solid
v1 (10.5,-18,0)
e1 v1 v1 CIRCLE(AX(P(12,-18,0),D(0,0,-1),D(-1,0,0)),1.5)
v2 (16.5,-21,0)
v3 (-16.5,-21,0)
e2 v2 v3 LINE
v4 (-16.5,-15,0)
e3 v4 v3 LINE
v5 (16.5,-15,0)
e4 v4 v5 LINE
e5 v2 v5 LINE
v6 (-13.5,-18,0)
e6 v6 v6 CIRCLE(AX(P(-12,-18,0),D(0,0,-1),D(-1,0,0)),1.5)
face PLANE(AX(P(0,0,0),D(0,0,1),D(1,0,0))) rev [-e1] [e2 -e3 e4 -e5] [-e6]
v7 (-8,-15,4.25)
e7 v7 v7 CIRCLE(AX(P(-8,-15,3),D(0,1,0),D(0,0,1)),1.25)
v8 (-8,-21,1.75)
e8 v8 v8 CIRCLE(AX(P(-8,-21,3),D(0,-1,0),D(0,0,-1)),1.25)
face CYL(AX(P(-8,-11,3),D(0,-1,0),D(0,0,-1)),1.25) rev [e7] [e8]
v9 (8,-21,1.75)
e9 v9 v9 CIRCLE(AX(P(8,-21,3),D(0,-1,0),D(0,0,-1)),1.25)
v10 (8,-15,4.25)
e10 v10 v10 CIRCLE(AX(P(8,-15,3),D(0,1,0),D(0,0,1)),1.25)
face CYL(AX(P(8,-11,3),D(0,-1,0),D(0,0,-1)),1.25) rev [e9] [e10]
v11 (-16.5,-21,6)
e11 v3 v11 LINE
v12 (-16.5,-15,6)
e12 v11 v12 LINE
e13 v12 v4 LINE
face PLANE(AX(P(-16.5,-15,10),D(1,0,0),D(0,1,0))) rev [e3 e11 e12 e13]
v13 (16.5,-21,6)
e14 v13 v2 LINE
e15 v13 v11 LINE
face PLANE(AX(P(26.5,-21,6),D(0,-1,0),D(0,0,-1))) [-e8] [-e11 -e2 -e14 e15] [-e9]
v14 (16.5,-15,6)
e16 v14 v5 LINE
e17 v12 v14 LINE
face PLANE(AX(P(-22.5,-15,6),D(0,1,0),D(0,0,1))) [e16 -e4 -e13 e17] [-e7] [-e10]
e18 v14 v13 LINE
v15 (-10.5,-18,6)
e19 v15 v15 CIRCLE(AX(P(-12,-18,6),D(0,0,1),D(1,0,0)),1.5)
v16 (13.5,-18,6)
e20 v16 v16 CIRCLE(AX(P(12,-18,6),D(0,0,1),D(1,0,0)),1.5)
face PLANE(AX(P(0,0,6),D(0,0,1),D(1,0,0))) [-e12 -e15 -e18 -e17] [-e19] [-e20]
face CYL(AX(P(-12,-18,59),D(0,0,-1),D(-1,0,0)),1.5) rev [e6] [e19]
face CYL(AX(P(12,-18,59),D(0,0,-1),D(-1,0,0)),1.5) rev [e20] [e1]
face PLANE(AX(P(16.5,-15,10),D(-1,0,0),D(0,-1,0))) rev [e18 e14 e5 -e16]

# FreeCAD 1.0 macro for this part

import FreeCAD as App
import Part
import Sketcher
from FreeCAD import Vector
Q = App.Units.Quantity

doc = App.newDocument("Part")
body = doc.addObject("PartDesign::Body", "Body")

# Sketch on XY plane
sketch1 = body.newObject("Sketcher::SketchObject", "Sketch")
sketch1.AttachmentSupport = (doc.getObject("XY_Plane"), [""])
sketch1.MapMode = "FlatFace"
sketch1.addGeometry([
    Part.LineSegment(Vector(-26.5, 19, 0), Vector(-26.5, -19, 0)),  # 0
    Part.LineSegment(Vector(-26.5, -19, 0), Vector(26.5, -19, 0)),  # 1
    Part.LineSegment(Vector(26.5, -19, 0), Vector(26.5, 19, 0)),  # 2
    Part.LineSegment(Vector(26.5, 19, 0), Vector(-26.5, 19, 0)),  # 3
    Part.LineSegment(Vector(22.5, -15, 0), Vector(-22.5, -15, 0)),  # 4
    Part.LineSegment(Vector(-22.5, -15, 0), Vector(-22.5, 15, 0)),  # 5
    Part.LineSegment(Vector(-22.5, 15, 0), Vector(22.5, 15, 0)),  # 6
    Part.LineSegment(Vector(22.5, 15, 0), Vector(22.5, -15, 0)),  # 7
], False)
sketch1.addConstraint([
    Sketcher.Constraint("Coincident", 0, 2, 1, 1),
    Sketcher.Constraint("Coincident", 1, 2, 2, 1),
    Sketcher.Constraint("Coincident", 2, 2, 3, 1),
    Sketcher.Constraint("Coincident", 3, 2, 0, 1),
    Sketcher.Constraint("Coincident", 4, 2, 5, 1),
    Sketcher.Constraint("Coincident", 5, 2, 6, 1),
    Sketcher.Constraint("Coincident", 6, 2, 7, 1),
    Sketcher.Constraint("Coincident", 7, 2, 4, 1),
    Sketcher.Constraint("Vertical", 0),
    Sketcher.Constraint("Horizontal", 1),
    Sketcher.Constraint("Vertical", 2),
    Sketcher.Constraint("Horizontal", 3),
    Sketcher.Constraint("Horizontal", 4),
    Sketcher.Constraint("Vertical", 5),
    Sketcher.Constraint("Horizontal", 6),
    Sketcher.Constraint("Vertical", 7),
    Sketcher.Constraint("Symmetric", 0, 2, 2, 2, -1, 1),
    Sketcher.Constraint("Symmetric", 4, 2, 6, 2, -1, 1),
    Sketcher.Constraint("DistanceX", 1, 1, 1, 2, Q("53 mm")),
    Sketcher.Constraint("DistanceX", 4, 2, 4, 1, Q("45 mm")),
    Sketcher.Constraint("DistanceY", 0, 2, 0, 1, Q("38 mm")),
    Sketcher.Constraint("DistanceY", 5, 1, 5, 2, Q("30 mm")),
])
pad1 = body.newObject("PartDesign::Pad", "Pad")
pad1.Profile = sketch1
pad1.Length = 6

# Sketch on YZ plane
sketch2 = body.newObject("Sketcher::SketchObject", "Sketch001")
sketch2.AttachmentSupport = (doc.getObject("YZ_Plane"), [""])
sketch2.MapMode = "FlatFace"
sketch2.AttachmentOffset = App.Placement(Vector(0, 0, -26.5), App.Rotation())
sketch2.addGeometry([
    Part.Circle(Vector(9, 3.5, 0), Vector(0, 0, 1), 1.5),
    Part.Circle(Vector(-9, 3.5, 0), Vector(0, 0, 1), 1.5),
], False)
sketch2.addConstraint([
    Sketcher.Constraint("Equal", 0, 1),
    Sketcher.Constraint("Symmetric", 0, 3, 1, 3, -2),
    Sketcher.Constraint("Diameter", 0, Q("3 mm")),
    Sketcher.Constraint("DistanceX", -1, 1, 0, 3, Q("9 mm")),
    Sketcher.Constraint("DistanceY", -1, 1, 0, 3, Q("3.5 mm")),
])
pocket1 = body.newObject("PartDesign::Pocket", "Pocket")
pocket1.Profile = sketch2
pocket1.Length = 59
pocket1.Reversed = True

# Sketch on XY plane
sketch3 = body.newObject("Sketcher::SketchObject", "Sketch002")
sketch3.AttachmentSupport = (doc.getObject("XY_Plane"), [""])
sketch3.MapMode = "FlatFace"
sketch3.addGeometry([
    Part.LineSegment(Vector(26.5, -19, 0), Vector(26.5, -21, 0)),
    Part.LineSegment(Vector(26.5, -21, 0), Vector(-26.5, -21, 0)),
    Part.LineSegment(Vector(-26.5, -21, 0), Vector(-26.5, -19, 0)),
    Part.LineSegment(Vector(-26.5, -19, 0), Vector(26.5, -19, 0)),
], False)
sketch3.addConstraint([
    Sketcher.Constraint("Coincident", 0, 2, 1, 1),
    Sketcher.Constraint("Coincident", 1, 2, 2, 1),
    Sketcher.Constraint("Coincident", 2, 2, 3, 1),
    Sketcher.Constraint("Coincident", 3, 2, 0, 1),
    Sketcher.Constraint("Vertical", 0),
    Sketcher.Constraint("Horizontal", 1),
    Sketcher.Constraint("Vertical", 2),
    Sketcher.Constraint("Horizontal", 3),
    Sketcher.Constraint("DistanceX", 1, 2, 1, 1, Q("53 mm")),
    Sketcher.Constraint("DistanceY", 0, 2, 0, 1, Q("2 mm")),
    Sketcher.Constraint("DistanceY", 0, 2, -1, 1, Q("21 mm")),
    Sketcher.Constraint("DistanceX", -1, 1, 0, 2, Q("26.5 mm")),
])
pad2 = body.newObject("PartDesign::Pad", "Pad001")
pad2.Profile = sketch3
pad2.Length = 6

# Sketch on XY plane
sketch4 = body.newObject("Sketcher::SketchObject", "Sketch003")
sketch4.AttachmentSupport = (doc.getObject("XY_Plane"), [""])
sketch4.MapMode = "FlatFace"
sketch4.addGeometry([
    Part.Circle(Vector(-12, -18, 0), Vector(0, 0, 1), 1.5),
    Part.Circle(Vector(12, -18, 0), Vector(0, 0, 1), 1.5),
], False)
sketch4.addConstraint([
    Sketcher.Constraint("Equal", 0, 1),
    Sketcher.Constraint("Symmetric", 0, 3, 1, 3, -2),
    Sketcher.Constraint("Diameter", 0, Q("3 mm")),
    Sketcher.Constraint("DistanceX", 0, 3, -1, 1, Q("12 mm")),
    Sketcher.Constraint("DistanceY", 0, 3, -1, 1, Q("18 mm")),
])
pocket2 = body.newObject("PartDesign::Pocket", "Pocket001")
pocket2.Profile = sketch4
pocket2.Length = 59
pocket2.Reversed = True

# Sketch on XY plane
sketch5 = body.newObject("Sketcher::SketchObject", "Sketch004")
sketch5.AttachmentSupport = (doc.getObject("XY_Plane"), [""])
sketch5.MapMode = "FlatFace"
sketch5.AttachmentOffset = App.Placement(Vector(0, 0, 6), App.Rotation())
sketch5.addGeometry([
    Part.LineSegment(Vector(-26.5, 19, 0), Vector(-26.5, 15, 0)),
    Part.LineSegment(Vector(-26.5, 15, 0), Vector(26.5, 15, 0)),
    Part.LineSegment(Vector(26.5, 15, 0), Vector(26.5, 19, 0)),
    Part.LineSegment(Vector(26.5, 19, 0), Vector(-26.5, 19, 0)),
], False)
sketch5.addConstraint([
    Sketcher.Constraint("Coincident", 0, 2, 1, 1),
    Sketcher.Constraint("Coincident", 1, 2, 2, 1),
    Sketcher.Constraint("Coincident", 2, 2, 3, 1),
    Sketcher.Constraint("Coincident", 3, 2, 0, 1),
    Sketcher.Constraint("Vertical", 0),
    Sketcher.Constraint("Horizontal", 1),
    Sketcher.Constraint("Vertical", 2),
    Sketcher.Constraint("Horizontal", 3),
    Sketcher.Constraint("DistanceX", 1, 1, 1, 2, Q("53 mm")),
    Sketcher.Constraint("DistanceY", 0, 2, 0, 1, Q("4 mm")),
    Sketcher.Constraint("DistanceY", -1, 1, 0, 2, Q("15 mm")),
    Sketcher.Constraint("DistanceX", 0, 2, -1, 1, Q("26.5 mm")),
])
pocket3 = body.newObject("PartDesign::Pocket", "Pocket002")
pocket3.Profile = sketch5
pocket3.Length = 10

# Sketch on XY plane
sketch6 = body.newObject("Sketcher::SketchObject", "Sketch005")
sketch6.AttachmentSupport = (doc.getObject("XY_Plane"), [""])
sketch6.MapMode = "FlatFace"
sketch6.AttachmentOffset = App.Placement(Vector(0, 0, 6), App.Rotation())
sketch6.addGeometry([
    Part.LineSegment(Vector(-26.5, 15, 0), Vector(-26.5, -15, 0)),
    Part.LineSegment(Vector(-26.5, -15, 0), Vector(26.5, -15, 0)),
    Part.LineSegment(Vector(26.5, -15, 0), Vector(26.5, 15, 0)),
    Part.LineSegment(Vector(26.5, 15, 0), Vector(-26.5, 15, 0)),
], False)
sketch6.addConstraint([
    Sketcher.Constraint("Coincident", 0, 2, 1, 1),
    Sketcher.Constraint("Coincident", 1, 2, 2, 1),
    Sketcher.Constraint("Coincident", 2, 2, 3, 1),
    Sketcher.Constraint("Coincident", 3, 2, 0, 1),
    Sketcher.Constraint("Vertical", 0),
    Sketcher.Constraint("Horizontal", 1),
    Sketcher.Constraint("Vertical", 2),
    Sketcher.Constraint("Horizontal", 3),
    Sketcher.Constraint("Symmetric", 0, 2, 2, 2, -1, 1),
    Sketcher.Constraint("DistanceX", 1, 1, 1, 2, Q("53 mm")),
    Sketcher.Constraint("DistanceY", 0, 2, 0, 1, Q("30 mm")),
])
pocket4 = body.newObject("PartDesign::Pocket", "Pocket003")
pocket4.Profile = sketch6
pocket4.Length = 10

# Sketch on XZ plane
sketch7 = body.newObject("Sketcher::SketchObject", "Sketch006")
sketch7.AttachmentSupport = (doc.getObject("XZ_Plane"), [""])
sketch7.MapMode = "FlatFace"
sketch7.AttachmentOffset = App.Placement(Vector(0, 0, 21), App.Rotation())
sketch7.addGeometry([
    Part.Circle(Vector(8, 3, 0), Vector(0, 0, 1), 1.25),
    Part.Circle(Vector(-8, 3, 0), Vector(0, 0, 1), 1.25),
], False)
sketch7.addConstraint([
    Sketcher.Constraint("Equal", 0, 1),
    Sketcher.Constraint("Symmetric", 0, 3, 1, 3, -2),
    Sketcher.Constraint("Diameter", 0, Q("2.5 mm")),
    Sketcher.Constraint("DistanceX", -1, 1, 0, 3, Q("8 mm")),
    Sketcher.Constraint("DistanceY", -1, 1, 0, 3, Q("3 mm")),
])
pocket5 = body.newObject("PartDesign::Pocket", "Pocket004")
pocket5.Profile = sketch7
pocket5.Length = 10

# Sketch on XY plane
sketch8 = body.newObject("Sketcher::SketchObject", "Sketch007")
sketch8.AttachmentSupport = (doc.getObject("XY_Plane"), [""])
sketch8.MapMode = "FlatFace"
sketch8.addGeometry([
    Part.LineSegment(Vector(-16.5, -15, 0), Vector(-16.5, -21, 0)),  # 0
    Part.LineSegment(Vector(-16.5, -21, 0), Vector(-26.5, -21, 0)),  # 1
    Part.LineSegment(Vector(-26.5, -21, 0), Vector(-26.5, -15, 0)),  # 2
    Part.LineSegment(Vector(-26.5, -15, 0), Vector(-16.5, -15, 0)),  # 3
    Part.LineSegment(Vector(26.5, -15, 0), Vector(26.5, -21, 0)),  # 4
    Part.LineSegment(Vector(26.5, -21, 0), Vector(16.5, -21, 0)),  # 5
    Part.LineSegment(Vector(16.5, -21, 0), Vector(16.5, -15, 0)),  # 6
    Part.LineSegment(Vector(16.5, -15, 0), Vector(26.5, -15, 0)),  # 7
], False)
sketch8.addConstraint([
    Sketcher.Constraint("Coincident", 0, 2, 1, 1),
    Sketcher.Constraint("Coincident", 1, 2, 2, 1),
    Sketcher.Constraint("Coincident", 2, 2, 3, 1),
    Sketcher.Constraint("Coincident", 3, 2, 0, 1),
    Sketcher.Constraint("Coincident", 4, 2, 5, 1),
    Sketcher.Constraint("Coincident", 5, 2, 6, 1),
    Sketcher.Constraint("Coincident", 6, 2, 7, 1),
    Sketcher.Constraint("Coincident", 7, 2, 4, 1),
    Sketcher.Constraint("Vertical", 0),
    Sketcher.Constraint("Horizontal", 1),
    Sketcher.Constraint("Vertical", 2),
    Sketcher.Constraint("Horizontal", 3),
    Sketcher.Constraint("Vertical", 4),
    Sketcher.Constraint("Horizontal", 5),
    Sketcher.Constraint("Vertical", 6),
    Sketcher.Constraint("Horizontal", 7),
    Sketcher.Constraint("Symmetric", 1, 2, 4, 2, -2),
    Sketcher.Constraint("Symmetric", 3, 2, 6, 2, -2),
    Sketcher.Constraint("DistanceX", 1, 2, 1, 1, Q("10 mm")),
    Sketcher.Constraint("DistanceY", 0, 2, 0, 1, Q("6 mm")),
    Sketcher.Constraint("DistanceY", 0, 2, -1, 1, Q("21 mm")),
    Sketcher.Constraint("DistanceX", 0, 2, 4, 2, Q("43 mm")),
])
pocket6 = body.newObject("PartDesign::Pocket", "Pocket005")
pocket6.Profile = sketch8
pocket6.Length = 10
pocket6.Reversed = True

doc.recompute()
